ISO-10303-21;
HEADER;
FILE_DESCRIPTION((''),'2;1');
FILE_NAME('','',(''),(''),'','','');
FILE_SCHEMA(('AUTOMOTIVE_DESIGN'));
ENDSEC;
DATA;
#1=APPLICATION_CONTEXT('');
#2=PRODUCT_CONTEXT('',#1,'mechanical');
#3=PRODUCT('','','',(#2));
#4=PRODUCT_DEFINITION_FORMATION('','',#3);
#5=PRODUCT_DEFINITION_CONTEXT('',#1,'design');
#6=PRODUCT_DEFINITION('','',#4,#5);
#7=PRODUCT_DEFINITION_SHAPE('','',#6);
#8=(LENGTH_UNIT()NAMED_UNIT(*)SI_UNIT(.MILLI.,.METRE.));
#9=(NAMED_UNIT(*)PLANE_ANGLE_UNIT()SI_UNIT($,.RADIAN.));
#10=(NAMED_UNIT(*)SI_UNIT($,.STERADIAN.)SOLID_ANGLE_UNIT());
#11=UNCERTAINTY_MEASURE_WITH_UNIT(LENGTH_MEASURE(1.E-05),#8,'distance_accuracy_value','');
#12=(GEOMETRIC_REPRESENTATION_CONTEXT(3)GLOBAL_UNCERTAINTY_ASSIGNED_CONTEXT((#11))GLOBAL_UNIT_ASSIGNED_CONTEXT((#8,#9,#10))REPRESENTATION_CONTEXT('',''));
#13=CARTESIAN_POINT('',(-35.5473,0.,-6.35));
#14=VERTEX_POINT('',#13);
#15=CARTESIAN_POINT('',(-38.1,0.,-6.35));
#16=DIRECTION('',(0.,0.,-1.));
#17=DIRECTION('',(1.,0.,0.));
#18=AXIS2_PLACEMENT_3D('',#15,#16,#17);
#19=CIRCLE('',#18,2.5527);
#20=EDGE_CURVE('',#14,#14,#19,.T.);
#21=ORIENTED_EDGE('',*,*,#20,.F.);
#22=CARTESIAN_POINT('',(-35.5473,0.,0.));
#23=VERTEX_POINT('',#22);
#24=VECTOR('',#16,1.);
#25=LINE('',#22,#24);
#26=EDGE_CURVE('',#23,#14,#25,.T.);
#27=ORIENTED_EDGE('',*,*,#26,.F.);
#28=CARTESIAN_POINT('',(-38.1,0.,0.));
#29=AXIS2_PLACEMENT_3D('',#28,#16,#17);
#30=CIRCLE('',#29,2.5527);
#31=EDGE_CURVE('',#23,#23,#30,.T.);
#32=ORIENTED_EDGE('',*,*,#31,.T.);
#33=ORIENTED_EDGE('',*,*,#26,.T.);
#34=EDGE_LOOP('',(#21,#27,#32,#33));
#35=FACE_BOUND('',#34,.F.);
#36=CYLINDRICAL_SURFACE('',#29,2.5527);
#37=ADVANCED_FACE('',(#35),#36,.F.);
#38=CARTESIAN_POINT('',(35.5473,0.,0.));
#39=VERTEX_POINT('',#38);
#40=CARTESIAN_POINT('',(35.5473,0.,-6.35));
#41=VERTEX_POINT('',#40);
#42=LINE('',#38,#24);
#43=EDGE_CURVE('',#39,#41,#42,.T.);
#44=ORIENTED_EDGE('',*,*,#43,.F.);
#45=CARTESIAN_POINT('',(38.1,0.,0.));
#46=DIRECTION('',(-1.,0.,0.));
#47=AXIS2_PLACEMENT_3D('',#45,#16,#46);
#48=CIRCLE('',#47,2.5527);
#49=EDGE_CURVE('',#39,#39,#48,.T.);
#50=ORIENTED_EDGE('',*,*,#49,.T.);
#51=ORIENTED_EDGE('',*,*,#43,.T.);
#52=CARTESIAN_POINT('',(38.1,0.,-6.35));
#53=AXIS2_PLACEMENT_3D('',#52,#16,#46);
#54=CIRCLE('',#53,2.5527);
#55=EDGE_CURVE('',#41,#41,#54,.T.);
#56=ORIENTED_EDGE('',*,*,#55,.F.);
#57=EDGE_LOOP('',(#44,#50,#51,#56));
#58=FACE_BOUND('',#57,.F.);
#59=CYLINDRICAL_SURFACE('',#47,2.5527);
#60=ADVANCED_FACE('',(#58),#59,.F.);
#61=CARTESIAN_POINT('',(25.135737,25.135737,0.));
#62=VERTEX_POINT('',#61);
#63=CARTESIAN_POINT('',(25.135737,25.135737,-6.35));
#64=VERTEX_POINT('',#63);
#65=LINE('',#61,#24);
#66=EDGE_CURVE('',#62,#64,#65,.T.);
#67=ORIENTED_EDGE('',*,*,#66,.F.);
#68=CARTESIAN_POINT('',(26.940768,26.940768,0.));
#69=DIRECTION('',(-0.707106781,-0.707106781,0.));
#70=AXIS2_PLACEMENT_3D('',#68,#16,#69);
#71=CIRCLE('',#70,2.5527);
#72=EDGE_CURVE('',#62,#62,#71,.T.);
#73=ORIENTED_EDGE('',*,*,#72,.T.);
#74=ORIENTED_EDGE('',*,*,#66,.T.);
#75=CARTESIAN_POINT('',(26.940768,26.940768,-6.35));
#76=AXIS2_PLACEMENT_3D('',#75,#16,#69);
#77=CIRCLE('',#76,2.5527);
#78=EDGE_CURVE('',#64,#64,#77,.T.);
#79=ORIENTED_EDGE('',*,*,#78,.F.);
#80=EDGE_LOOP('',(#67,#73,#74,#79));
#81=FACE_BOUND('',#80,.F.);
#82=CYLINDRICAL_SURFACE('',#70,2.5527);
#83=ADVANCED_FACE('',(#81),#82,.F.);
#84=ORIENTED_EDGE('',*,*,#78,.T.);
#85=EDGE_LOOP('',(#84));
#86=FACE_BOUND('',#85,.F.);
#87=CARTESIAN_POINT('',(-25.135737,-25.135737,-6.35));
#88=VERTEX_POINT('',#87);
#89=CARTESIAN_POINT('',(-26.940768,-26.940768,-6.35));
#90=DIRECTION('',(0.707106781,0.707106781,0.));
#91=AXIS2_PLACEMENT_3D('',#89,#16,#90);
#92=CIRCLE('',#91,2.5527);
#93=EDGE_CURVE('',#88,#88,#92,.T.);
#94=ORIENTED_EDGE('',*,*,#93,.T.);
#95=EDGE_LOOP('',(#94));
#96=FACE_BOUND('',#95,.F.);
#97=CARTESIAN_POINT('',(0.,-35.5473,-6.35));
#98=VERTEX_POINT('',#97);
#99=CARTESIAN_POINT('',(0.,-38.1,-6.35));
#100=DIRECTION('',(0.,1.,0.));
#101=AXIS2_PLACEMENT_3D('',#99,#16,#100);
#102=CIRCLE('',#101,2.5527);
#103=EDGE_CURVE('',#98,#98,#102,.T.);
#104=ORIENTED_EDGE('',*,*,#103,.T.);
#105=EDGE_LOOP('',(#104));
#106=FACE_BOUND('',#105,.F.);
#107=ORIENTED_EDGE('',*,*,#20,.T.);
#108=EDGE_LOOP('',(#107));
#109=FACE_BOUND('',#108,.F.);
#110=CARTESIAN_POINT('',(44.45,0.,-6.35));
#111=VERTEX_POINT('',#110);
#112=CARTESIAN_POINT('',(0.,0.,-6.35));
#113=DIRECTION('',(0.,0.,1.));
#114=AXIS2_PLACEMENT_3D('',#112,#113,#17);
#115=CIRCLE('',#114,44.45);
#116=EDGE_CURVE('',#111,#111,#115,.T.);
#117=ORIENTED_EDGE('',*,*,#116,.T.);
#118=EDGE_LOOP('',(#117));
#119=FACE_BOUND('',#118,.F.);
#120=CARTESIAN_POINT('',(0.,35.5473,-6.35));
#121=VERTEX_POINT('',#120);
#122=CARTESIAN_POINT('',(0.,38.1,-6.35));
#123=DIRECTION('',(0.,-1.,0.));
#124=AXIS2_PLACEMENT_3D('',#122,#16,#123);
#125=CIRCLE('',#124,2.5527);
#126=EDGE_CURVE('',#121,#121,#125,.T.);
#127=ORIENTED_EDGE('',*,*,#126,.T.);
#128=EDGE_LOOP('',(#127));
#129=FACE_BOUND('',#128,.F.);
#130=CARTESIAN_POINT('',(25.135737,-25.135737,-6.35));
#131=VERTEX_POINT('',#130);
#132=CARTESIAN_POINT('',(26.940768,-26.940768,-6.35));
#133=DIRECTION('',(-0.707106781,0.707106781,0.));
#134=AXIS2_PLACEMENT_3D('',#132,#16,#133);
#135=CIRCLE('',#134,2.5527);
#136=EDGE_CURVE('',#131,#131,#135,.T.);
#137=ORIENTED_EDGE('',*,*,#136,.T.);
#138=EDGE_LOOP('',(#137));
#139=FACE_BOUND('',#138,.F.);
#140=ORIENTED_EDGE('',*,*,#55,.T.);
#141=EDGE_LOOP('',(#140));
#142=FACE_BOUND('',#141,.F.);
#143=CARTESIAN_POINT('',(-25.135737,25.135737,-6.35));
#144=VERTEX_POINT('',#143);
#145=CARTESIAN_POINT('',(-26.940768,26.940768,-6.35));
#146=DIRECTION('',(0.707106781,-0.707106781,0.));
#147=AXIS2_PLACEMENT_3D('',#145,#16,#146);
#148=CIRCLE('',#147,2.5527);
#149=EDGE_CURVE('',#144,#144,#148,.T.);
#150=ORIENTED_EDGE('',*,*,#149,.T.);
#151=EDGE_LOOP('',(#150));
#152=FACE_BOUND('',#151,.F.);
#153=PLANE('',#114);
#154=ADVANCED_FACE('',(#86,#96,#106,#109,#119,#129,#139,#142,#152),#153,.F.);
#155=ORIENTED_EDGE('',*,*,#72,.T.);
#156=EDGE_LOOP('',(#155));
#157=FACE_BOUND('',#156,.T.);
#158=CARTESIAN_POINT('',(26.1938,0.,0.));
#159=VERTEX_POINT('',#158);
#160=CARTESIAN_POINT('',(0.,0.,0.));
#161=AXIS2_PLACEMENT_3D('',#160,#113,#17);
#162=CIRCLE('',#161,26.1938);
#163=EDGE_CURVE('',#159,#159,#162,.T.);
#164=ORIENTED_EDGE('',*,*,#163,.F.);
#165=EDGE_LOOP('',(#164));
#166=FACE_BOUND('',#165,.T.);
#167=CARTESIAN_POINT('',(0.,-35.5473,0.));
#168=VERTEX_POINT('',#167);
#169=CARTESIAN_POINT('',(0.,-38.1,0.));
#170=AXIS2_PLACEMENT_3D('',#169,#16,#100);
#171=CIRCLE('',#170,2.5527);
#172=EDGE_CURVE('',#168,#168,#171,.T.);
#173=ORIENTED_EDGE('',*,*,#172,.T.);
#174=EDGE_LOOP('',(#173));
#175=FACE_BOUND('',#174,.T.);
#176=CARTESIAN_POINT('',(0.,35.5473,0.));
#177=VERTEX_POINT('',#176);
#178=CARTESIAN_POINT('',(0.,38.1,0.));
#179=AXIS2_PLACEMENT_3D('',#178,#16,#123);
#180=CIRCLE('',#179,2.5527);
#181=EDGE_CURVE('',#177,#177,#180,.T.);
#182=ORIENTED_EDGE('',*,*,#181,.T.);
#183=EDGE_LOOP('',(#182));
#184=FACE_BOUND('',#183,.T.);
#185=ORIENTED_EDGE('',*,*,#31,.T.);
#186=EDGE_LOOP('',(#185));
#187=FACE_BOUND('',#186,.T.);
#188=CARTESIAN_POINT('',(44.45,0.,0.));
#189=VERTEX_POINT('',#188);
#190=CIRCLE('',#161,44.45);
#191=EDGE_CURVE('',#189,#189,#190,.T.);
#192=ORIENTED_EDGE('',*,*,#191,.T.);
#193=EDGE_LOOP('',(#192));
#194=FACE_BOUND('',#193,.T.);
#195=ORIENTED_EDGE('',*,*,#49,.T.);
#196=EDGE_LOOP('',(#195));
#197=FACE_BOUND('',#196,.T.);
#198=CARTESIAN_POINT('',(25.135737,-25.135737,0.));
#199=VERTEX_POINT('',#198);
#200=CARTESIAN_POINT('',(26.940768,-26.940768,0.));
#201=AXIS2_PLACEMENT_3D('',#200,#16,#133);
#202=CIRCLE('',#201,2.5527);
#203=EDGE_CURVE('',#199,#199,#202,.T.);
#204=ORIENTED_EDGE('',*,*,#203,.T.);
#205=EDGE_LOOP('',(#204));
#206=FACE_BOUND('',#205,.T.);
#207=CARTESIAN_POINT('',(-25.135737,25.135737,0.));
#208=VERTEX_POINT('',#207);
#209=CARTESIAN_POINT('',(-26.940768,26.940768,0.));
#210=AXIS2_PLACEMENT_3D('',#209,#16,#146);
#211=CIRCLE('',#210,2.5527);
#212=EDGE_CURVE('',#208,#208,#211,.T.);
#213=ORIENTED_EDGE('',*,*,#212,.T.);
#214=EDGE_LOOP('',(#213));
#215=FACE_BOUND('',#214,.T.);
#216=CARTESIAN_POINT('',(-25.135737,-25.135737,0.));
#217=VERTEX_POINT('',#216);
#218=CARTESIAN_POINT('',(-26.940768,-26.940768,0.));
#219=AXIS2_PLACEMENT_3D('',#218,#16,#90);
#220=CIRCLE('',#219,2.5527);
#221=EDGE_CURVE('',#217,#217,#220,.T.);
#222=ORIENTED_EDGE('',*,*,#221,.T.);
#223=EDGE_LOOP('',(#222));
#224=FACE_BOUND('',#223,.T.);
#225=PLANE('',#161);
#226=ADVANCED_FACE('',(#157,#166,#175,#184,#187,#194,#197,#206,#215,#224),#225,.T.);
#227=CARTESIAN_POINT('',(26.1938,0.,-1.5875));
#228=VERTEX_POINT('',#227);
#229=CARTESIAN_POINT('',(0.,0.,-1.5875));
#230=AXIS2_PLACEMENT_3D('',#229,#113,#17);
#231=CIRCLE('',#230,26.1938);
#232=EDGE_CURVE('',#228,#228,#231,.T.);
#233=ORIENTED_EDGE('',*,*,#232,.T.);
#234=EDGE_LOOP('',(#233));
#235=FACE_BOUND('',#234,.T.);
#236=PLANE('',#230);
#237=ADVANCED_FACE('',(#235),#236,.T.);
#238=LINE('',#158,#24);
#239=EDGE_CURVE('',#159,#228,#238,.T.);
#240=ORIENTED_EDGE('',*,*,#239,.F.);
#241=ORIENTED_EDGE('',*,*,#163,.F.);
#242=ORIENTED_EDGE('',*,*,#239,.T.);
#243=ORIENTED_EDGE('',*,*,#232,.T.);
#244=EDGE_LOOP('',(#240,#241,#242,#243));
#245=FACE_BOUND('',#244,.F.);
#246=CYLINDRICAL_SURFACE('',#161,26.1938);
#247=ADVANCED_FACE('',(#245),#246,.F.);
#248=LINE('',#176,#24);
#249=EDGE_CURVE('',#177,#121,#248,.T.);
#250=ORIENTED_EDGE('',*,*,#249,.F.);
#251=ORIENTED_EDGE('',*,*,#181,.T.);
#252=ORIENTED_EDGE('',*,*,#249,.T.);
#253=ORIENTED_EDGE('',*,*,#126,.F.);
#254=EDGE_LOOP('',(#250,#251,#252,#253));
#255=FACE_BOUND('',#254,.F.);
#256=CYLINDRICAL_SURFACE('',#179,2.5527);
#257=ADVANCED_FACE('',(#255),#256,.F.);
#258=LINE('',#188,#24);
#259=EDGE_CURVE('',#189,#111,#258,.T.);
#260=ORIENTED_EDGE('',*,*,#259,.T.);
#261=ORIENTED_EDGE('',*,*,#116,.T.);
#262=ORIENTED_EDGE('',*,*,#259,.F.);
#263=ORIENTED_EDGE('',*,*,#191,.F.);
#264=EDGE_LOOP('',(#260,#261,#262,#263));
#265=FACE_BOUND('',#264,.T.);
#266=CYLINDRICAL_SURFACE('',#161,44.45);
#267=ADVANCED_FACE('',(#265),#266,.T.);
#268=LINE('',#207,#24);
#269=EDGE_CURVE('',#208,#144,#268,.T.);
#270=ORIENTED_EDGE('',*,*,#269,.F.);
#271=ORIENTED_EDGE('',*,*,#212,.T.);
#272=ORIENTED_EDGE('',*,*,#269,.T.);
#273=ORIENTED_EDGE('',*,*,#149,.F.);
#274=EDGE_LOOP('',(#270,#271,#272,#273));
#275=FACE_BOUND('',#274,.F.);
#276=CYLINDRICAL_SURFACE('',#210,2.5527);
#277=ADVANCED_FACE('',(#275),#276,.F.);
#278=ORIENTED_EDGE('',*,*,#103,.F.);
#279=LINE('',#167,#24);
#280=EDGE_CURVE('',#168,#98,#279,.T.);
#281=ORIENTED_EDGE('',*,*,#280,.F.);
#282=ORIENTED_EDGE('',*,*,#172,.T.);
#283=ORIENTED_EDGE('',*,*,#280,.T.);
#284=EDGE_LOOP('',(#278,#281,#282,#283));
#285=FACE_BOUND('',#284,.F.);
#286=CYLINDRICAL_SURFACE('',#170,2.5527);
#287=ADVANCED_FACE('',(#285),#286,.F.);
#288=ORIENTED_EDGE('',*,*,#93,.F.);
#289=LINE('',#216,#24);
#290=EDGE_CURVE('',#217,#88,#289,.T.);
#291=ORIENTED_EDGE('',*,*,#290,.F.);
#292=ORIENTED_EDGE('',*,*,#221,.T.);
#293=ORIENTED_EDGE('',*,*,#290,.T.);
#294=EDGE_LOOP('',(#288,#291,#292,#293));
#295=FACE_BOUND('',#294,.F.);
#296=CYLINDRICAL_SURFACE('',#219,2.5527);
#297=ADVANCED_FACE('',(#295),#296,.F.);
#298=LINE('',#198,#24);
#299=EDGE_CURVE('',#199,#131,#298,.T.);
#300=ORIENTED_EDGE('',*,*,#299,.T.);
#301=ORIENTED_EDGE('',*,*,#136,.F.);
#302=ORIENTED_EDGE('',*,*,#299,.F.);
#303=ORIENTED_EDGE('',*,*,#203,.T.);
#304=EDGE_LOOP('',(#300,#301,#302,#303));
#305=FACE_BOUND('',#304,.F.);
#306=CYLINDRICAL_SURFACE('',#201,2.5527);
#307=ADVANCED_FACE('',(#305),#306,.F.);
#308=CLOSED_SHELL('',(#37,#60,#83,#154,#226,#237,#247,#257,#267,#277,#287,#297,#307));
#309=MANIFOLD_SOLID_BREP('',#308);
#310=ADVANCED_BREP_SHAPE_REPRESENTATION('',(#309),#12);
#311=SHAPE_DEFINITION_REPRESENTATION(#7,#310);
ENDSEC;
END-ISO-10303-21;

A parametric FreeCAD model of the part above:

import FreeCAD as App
import Part
import Sketcher
Q = App.Units.Quantity

doc = App.newDocument("Part")
body = doc.addObject("PartDesign::Body", "Body")

# Sketch on XY plane
sketch1 = body.newObject("Sketcher::SketchObject", "Sketch")
sketch1.AttachmentSupport = (doc.getObject("XY_Plane"), [""])
sketch1.MapMode = "FlatFace"
sketch1.addGeometry(Part.Circle(App.Vector(0, 0, 0), App.Vector(0, 0, 1), 44.45), False)
sketch1.addConstraint([
    Sketcher.Constraint("Coincident", 0, 3, -1, 1),
    Sketcher.Constraint("Diameter", 0, Q("3.5 in")),
])
pad1 = body.newObject("PartDesign::Pad", "Pad")
pad1.Profile = sketch1
pad1.Length = Q("0.25 in")
pad1.Reversed = True

# Sketch on XY plane
sketch2 = body.newObject("Sketcher::SketchObject", "Sketch001")
sketch2.AttachmentSupport = (doc.getObject("XY_Plane"), [""])
sketch2.MapMode = "FlatFace"
sketch2.addGeometry(Part.Circle(App.Vector(0, 38.1, 0), App.Vector(0, 0, 1), 2.5527), False)
sketch2.addConstraint([
    Sketcher.Constraint("PointOnObject", 0, 3, -2),
    Sketcher.Constraint("Diameter", 0, Q("0.201 in")),
    Sketcher.Constraint("DistanceY", -1, 1, 0, 3, Q("1.5 in")),
])
doc.recompute()
hole = body.newObject("PartDesign::Hole", "Hole")
hole.Profile = sketch2
hole.ThreadType = "None"
hole.Diameter = Q("0.201 in")
hole.DepthType = "ThroughAll"
doc.recompute()

polarpattern = body.newObject("PartDesign::PolarPattern", "PolarPattern")
polarpattern.Originals = [hole]
polarpattern.Axis = (doc.getObject("Z_Axis"), [""])
polarpattern.Angle = 360
polarpattern.Occurrences = 8
body.Tip = polarpattern

# Sketch on XY plane
sketch3 = body.newObject("Sketcher::SketchObject", "Sketch002")
sketch3.AttachmentSupport = (doc.getObject("XY_Plane"), [""])
sketch3.MapMode = "FlatFace"
sketch3.addGeometry(Part.Circle(App.Vector(0, 0, 0), App.Vector(0, 0, 1), 26.1938), False)
sketch3.addConstraint([
    Sketcher.Constraint("Coincident", 0, 3, -1, 1),
    Sketcher.Constraint("Diameter", 0, Q("2.0625 in")),
])
pocket1 = body.newObject("PartDesign::Pocket", "Pocket")
pocket1.Profile = sketch3
pocket1.Length = Q("0.0625 in")

doc.recompute()
